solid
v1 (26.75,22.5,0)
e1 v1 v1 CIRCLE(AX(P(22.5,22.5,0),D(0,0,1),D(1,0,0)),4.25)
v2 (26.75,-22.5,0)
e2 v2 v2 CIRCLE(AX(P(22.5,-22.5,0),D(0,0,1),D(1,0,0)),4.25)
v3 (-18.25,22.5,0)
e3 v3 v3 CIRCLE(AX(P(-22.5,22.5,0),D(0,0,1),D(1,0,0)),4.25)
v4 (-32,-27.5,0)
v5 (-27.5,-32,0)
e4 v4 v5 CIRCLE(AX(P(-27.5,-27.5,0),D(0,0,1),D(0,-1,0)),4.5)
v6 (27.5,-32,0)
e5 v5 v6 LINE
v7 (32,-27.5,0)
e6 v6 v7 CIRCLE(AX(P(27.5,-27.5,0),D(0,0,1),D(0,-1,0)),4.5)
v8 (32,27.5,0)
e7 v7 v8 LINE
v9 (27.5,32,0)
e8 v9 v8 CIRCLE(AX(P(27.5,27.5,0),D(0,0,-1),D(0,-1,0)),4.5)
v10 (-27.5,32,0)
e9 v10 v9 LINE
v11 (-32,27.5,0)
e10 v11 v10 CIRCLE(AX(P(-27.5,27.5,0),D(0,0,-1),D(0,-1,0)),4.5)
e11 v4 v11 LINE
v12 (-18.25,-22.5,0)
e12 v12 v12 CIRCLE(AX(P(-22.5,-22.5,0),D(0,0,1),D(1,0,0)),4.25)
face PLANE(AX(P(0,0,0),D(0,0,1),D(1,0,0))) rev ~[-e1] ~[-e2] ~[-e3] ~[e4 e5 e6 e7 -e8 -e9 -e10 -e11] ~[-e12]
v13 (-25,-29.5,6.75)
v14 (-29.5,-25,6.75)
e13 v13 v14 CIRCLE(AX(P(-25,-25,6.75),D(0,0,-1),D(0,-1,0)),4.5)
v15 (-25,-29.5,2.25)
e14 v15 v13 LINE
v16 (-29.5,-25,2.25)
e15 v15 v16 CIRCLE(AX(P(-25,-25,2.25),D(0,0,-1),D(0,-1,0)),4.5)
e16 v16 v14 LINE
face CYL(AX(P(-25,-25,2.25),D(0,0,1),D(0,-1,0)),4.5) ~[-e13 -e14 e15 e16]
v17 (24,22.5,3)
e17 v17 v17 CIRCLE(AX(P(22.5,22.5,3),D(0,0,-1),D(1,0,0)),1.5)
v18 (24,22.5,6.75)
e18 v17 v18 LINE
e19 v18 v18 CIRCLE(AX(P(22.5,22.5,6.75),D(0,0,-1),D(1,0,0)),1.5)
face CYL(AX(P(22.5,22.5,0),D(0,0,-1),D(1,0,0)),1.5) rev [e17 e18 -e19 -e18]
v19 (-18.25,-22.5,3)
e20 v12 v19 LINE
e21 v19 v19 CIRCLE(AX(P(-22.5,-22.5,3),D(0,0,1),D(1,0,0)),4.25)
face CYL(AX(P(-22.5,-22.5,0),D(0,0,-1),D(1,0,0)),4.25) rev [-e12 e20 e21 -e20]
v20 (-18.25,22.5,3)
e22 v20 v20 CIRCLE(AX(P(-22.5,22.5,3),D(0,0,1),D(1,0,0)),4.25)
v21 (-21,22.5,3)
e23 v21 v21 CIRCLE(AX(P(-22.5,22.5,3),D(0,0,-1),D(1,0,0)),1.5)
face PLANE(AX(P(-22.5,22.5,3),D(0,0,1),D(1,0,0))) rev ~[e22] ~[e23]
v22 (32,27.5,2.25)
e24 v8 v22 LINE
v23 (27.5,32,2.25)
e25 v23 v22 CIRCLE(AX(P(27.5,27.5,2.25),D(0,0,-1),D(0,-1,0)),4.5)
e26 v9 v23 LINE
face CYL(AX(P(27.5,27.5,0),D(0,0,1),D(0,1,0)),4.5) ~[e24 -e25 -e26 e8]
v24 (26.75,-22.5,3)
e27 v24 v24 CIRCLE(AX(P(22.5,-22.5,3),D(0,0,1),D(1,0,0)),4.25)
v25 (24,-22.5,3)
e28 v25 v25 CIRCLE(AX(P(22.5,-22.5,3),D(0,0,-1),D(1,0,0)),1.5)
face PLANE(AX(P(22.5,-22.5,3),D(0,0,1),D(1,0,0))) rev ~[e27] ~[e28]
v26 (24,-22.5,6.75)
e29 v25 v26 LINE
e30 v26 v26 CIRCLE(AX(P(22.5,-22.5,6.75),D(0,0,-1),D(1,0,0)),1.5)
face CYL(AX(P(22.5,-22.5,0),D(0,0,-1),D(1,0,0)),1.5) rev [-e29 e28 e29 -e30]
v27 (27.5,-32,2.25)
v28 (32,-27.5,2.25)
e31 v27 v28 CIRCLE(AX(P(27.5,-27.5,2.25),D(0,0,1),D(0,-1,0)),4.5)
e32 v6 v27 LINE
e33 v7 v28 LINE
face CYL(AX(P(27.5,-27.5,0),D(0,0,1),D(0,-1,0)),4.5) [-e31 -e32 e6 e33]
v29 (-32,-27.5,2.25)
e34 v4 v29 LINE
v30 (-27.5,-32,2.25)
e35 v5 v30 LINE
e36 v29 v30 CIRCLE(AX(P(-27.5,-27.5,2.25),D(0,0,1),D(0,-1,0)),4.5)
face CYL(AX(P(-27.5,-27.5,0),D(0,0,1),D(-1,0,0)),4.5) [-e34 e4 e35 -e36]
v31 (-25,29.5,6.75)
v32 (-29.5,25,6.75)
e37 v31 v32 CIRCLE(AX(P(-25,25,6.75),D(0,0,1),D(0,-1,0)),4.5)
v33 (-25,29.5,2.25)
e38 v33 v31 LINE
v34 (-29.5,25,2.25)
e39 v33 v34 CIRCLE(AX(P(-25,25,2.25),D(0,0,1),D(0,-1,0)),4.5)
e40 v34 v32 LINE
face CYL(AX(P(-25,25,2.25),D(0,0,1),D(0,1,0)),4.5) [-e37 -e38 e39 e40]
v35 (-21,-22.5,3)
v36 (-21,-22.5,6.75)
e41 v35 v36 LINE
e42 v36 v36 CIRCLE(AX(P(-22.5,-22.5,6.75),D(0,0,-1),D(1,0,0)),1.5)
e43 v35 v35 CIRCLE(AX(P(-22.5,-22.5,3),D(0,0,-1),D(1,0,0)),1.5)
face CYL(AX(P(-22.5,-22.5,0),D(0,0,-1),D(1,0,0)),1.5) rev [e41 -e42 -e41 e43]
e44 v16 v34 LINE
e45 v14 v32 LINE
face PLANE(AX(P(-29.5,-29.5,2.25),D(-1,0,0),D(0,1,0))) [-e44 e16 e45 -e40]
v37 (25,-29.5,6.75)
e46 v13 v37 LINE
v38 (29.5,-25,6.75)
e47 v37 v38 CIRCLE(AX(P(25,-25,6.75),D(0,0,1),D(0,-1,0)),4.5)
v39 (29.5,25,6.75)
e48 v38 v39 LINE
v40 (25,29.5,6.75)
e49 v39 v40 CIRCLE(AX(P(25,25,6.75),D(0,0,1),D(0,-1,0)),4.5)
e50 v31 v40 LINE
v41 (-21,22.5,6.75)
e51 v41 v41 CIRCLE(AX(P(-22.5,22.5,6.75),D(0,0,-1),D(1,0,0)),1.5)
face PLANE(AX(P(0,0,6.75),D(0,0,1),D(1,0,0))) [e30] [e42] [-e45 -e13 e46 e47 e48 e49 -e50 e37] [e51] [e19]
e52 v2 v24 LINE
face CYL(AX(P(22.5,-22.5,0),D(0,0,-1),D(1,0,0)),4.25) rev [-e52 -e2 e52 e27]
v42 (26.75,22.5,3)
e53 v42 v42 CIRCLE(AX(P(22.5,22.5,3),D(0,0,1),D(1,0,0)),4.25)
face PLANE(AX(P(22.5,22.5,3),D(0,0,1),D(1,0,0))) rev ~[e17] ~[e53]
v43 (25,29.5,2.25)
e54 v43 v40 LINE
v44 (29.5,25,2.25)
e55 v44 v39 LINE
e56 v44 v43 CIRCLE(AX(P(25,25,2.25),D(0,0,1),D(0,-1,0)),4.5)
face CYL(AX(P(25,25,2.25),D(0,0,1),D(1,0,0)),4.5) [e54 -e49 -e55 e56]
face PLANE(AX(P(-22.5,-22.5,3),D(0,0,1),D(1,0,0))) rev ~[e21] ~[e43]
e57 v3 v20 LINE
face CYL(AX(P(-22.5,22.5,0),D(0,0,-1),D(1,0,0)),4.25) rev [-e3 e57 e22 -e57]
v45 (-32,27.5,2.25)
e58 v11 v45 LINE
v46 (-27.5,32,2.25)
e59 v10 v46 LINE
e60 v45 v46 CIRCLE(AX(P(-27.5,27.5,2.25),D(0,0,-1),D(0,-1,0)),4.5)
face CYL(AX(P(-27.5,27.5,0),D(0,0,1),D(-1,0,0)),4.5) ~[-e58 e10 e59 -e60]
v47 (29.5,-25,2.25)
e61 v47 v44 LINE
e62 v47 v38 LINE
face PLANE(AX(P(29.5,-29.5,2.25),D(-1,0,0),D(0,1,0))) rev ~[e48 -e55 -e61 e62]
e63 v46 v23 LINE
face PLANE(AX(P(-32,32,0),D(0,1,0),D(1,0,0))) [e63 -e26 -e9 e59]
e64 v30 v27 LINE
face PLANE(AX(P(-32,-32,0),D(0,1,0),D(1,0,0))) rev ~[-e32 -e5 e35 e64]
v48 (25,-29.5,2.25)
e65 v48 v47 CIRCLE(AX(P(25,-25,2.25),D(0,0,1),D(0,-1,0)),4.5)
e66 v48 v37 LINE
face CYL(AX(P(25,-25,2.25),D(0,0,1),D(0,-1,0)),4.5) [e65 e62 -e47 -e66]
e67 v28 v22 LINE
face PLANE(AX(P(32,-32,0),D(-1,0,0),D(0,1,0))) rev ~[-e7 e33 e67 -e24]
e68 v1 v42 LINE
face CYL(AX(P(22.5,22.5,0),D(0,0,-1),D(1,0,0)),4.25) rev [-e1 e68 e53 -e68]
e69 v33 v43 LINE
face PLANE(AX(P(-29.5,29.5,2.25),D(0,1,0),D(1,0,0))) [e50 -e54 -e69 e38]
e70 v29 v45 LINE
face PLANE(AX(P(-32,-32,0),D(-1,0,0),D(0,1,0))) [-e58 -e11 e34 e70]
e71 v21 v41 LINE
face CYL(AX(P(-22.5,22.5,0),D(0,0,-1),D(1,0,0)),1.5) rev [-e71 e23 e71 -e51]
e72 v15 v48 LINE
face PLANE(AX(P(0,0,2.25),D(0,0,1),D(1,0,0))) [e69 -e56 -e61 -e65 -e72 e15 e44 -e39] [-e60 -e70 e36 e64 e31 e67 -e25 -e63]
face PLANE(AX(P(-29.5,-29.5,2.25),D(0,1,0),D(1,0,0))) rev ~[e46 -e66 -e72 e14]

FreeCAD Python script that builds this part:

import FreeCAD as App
import Part
import Sketcher
Q = App.Units.Quantity


def edges_at(feature, points):
    """Names of the edges that pass closest to the given points."""
    edges = feature.Shape.Edges
    near = lambda p: min(range(len(edges)), key=lambda i: edges[i].distToShape(Part.Vertex(*p))[0])
    return sorted({f"Edge{near(p) + 1}" for p in points})


def add_polygon(sketch, points):
    """Adds a closed chain of lines whose ends are joined by coincident constraints."""
    first, n = sketch.GeometryCount, len(points)
    for a, b in zip(points, points[1:] + points[:1]):
        sketch.addGeometry(Part.LineSegment(App.Vector(*a, 0), App.Vector(*b, 0)), False)
    for i in range(n):
        sketch.addConstraint(Sketcher.Constraint("Coincident", first + i, 2, first + (i + 1) % n, 1))

doc = App.newDocument("Part")
body = doc.addObject("PartDesign::Body", "Body")

sketch1 = doc.addObject("Sketcher::SketchObject", "Sketch")
body.addObject(sketch1)
sketch1.AttachmentSupport = (doc.XY_Plane, [""])
sketch1.MapMode = "FlatFace"
add_polygon(sketch1, [(-32, 32), (-32, -32), (32, -32), (32, 32)])
sketch1.addConstraint(Sketcher.Constraint("Vertical", 0))
sketch1.addConstraint(Sketcher.Constraint("Horizontal", 1))
sketch1.addConstraint(Sketcher.Constraint("Vertical", 2))
sketch1.addConstraint(Sketcher.Constraint("Horizontal", 3))
sketch1.addConstraint(Sketcher.Constraint("Symmetric", 0, 2, 2, 2, -1, 1))
sketch1.addConstraint(Sketcher.Constraint("Equal", 3, 0))
sketch1.addConstraint(Sketcher.Constraint("DistanceX", 1, 1, 1, 2, Q("64 mm")))
pad1 = doc.addObject("PartDesign::Pad", "Pad")
body.addObject(pad1)
pad1.Profile = sketch1
pad1.Length = 2.25

sketch2 = doc.addObject("Sketcher::SketchObject", "Sketch001")
body.addObject(sketch2)
sketch2.AttachmentSupport = (doc.XY_Plane, [""])
sketch2.MapMode = "FlatFace"
sketch2.AttachmentOffset = App.Placement(App.Vector(0, 0, 2.25), App.Rotation())
add_polygon(sketch2, [(-30, 30), (-30, -30), (30, -30), (30, 30)])
sketch2.addConstraint(Sketcher.Constraint("Vertical", 0))
sketch2.addConstraint(Sketcher.Constraint("Horizontal", 1))
sketch2.addConstraint(Sketcher.Constraint("Vertical", 2))
sketch2.addConstraint(Sketcher.Constraint("Horizontal", 3))
sketch2.addConstraint(Sketcher.Constraint("Symmetric", 0, 2, 2, 2, -1, 1))
sketch2.addConstraint(Sketcher.Constraint("Equal", 3, 0))
sketch2.addConstraint(Sketcher.Constraint("DistanceX", 1, 1, 1, 2, Q("59 mm")))
pad2 = doc.addObject("PartDesign::Pad", "Pad001")
body.addObject(pad2)
pad2.Profile = sketch2
pad2.Length = 4.5

sketch3 = doc.addObject("Sketcher::SketchObject", "Sketch002")
body.addObject(sketch3)
sketch3.AttachmentSupport = (doc.XY_Plane, [""])
sketch3.MapMode = "FlatFace"
sketch3.addGeometry(Part.Circle(App.Vector(-22.5, 22.5, 0), App.Vector(0, 0, 1), 1.5), False)
sketch3.addGeometry(Part.Circle(App.Vector(22.5, 22.5, 0), App.Vector(0, 0, 1), 1.5), False)
sketch3.addGeometry(Part.Circle(App.Vector(22.5, -22.5, 0), App.Vector(0, 0, 1), 1.5), False)
sketch3.addGeometry(Part.Circle(App.Vector(-22.5, -22.5, 0), App.Vector(0, 0, 1), 1.5), False)
sketch3.addConstraint(Sketcher.Constraint("Equal", 0, 1))
sketch3.addConstraint(Sketcher.Constraint("Equal", 1, 2))
sketch3.addConstraint(Sketcher.Constraint("Equal", 2, 3))
sketch3.addConstraint(Sketcher.Constraint("Symmetric", 0, 3, 2, 3, -1, 1))
sketch3.addConstraint(Sketcher.Constraint("Symmetric", 1, 3, 3, 3, -1, 1))
sketch3.addConstraint(Sketcher.Constraint("Symmetric", 0, 3, 1, 3, -2))
sketch3.addConstraint(Sketcher.Constraint("Diameter", 0, Q("3 mm")))
sketch3.addConstraint(Sketcher.Constraint("DistanceX", 0, 3, 1, 3, Q("45 mm")))
sketch3.addConstraint(Sketcher.Constraint("DistanceY", 2, 3, 1, 3, Q("45 mm")))
pocket1 = doc.addObject("PartDesign::Pocket", "Pocket")
body.addObject(pocket1)
pocket1.Profile = sketch3
pocket1.Type = "ThroughAll"
pocket1.Reversed = True

sketch4 = doc.addObject("Sketcher::SketchObject", "Sketch003")
body.addObject(sketch4)
sketch4.AttachmentSupport = (doc.XY_Plane, [""])
sketch4.MapMode = "FlatFace"
sketch4.addGeometry(Part.Circle(App.Vector(-22.5, 22.5, 0), App.Vector(0, 0, 1), 4.2), False)
sketch4.addGeometry(Part.Circle(App.Vector(22.5, 22.5, 0), App.Vector(0, 0, 1), 4.2), False)
sketch4.addGeometry(Part.Circle(App.Vector(22.5, -22.5, 0), App.Vector(0, 0, 1), 4.2), False)
sketch4.addGeometry(Part.Circle(App.Vector(-22.5, -22.5, 0), App.Vector(0, 0, 1), 4.2), False)
sketch4.addConstraint(Sketcher.Constraint("Equal", 0, 1))
sketch4.addConstraint(Sketcher.Constraint("Equal", 1, 2))
sketch4.addConstraint(Sketcher.Constraint("Equal", 2, 3))
sketch4.addConstraint(Sketcher.Constraint("Symmetric", 0, 3, 2, 3, -1, 1))
sketch4.addConstraint(Sketcher.Constraint("Symmetric", 1, 3, 3, 3, -1, 1))
sketch4.addConstraint(Sketcher.Constraint("Symmetric", 0, 3, 1, 3, -2))
sketch4.addConstraint(Sketcher.Constraint("Diameter", 0, Q("8.5 mm")))
sketch4.addConstraint(Sketcher.Constraint("DistanceX", 0, 3, 1, 3, Q("45 mm")))
sketch4.addConstraint(Sketcher.Constraint("DistanceY", 2, 3, 1, 3, Q("45 mm")))
pocket2 = doc.addObject("PartDesign::Pocket", "Pocket001")
body.addObject(pocket2)
pocket2.Profile = sketch4
pocket2.Length = 3
pocket2.Reversed = True
doc.recompute()

fillet = doc.addObject("PartDesign::Fillet", "Fillet")
body.addObject(fillet)
fillet.Base = (pocket2, edges_at(pocket2, [
    (29.5, -29.5, 4.5),
    (32, -32, 1.125),
    (29.5, 29.5, 4.5),
    (32, 32, 1.125),
    (-29.5, -29.5, 4.5),
    (-32, -32, 1.125),
    (-29.5, 29.5, 4.5),
    (-32, 32, 1.125),
]))
fillet.Radius = 4.5

doc.recompute()
